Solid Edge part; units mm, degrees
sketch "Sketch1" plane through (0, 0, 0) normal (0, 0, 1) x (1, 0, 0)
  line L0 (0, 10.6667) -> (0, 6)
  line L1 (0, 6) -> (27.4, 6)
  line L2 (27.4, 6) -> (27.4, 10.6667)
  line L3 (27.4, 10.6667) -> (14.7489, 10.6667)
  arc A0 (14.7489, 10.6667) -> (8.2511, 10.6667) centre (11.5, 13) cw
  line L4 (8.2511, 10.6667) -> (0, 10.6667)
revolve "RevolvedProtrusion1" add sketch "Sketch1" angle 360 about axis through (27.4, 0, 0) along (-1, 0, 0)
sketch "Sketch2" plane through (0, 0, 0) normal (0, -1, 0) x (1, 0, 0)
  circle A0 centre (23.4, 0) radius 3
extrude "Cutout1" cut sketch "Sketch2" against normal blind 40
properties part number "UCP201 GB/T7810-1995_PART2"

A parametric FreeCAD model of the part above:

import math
import FreeCAD as App
import Part
import Sketcher

V = App.Vector

doc = App.newDocument("Part")
body = doc.addObject("PartDesign::Body", "Body")

sketch1 = body.newObject("Sketcher::SketchObject", "Sketch")
sketch1.AttachmentSupport = (doc.getObject("XY_Plane"), [""])
sketch1.MapMode = "FlatFace"
sketch1.addGeometry([
    Part.LineSegment(V(8.2511, 10.6667, 0), V(0, 10.6667, 0)),
    Part.LineSegment(V(0, 10.6667, 0), V(0, 6, 0)),
    Part.LineSegment(V(0, 6, 0), V(27.4, 6, 0)),
    Part.LineSegment(V(27.4, 6, 0), V(27.4, 10.6667, 0)),
    Part.LineSegment(V(27.4, 10.6667, 0), V(14.7489, 10.6667, 0)),
    Part.ArcOfCircle(Part.Circle(V(11.5, 13, 0), V(0, 0, 1), 3.999955), math.radians(-144.31479), math.radians(-35.68521)),
], False)
sketch1.addConstraint([
    Sketcher.Constraint("Coincident", 0, 2, 1, 1),
    Sketcher.Constraint("Coincident", 1, 2, 2, 1),
    Sketcher.Constraint("Coincident", 2, 2, 3, 1),
    Sketcher.Constraint("Coincident", 3, 2, 4, 1),
    Sketcher.Constraint("Coincident", 4, 2, 5, 2),
    Sketcher.Constraint("Coincident", 5, 1, 0, 1),
    Sketcher.Constraint("Horizontal", 0),
    Sketcher.Constraint("Vertical", 1),
    Sketcher.Constraint("Horizontal", 2),
    Sketcher.Constraint("Vertical", 3),
    Sketcher.Constraint("Horizontal", 4),
    Sketcher.Constraint("PointOnObject", 0, 2, -2),
    Sketcher.Constraint("Horizontal", 0, 2, 3, 2),
    Sketcher.Constraint("Radius", 5, 4.0),
    Sketcher.Constraint("DistanceX", 2, 1, 2, 2, 27.4),
    Sketcher.Constraint("DistanceY", -1, 1, 5, 3, 13.0),
    Sketcher.Constraint("DistanceY", -1, 1, 1, 2, 6.0),
    Sketcher.Constraint("DistanceX", -1, 1, 5, 3, 11.5),
    Sketcher.Constraint("DistanceX", 0, 2, 0, 1, 8.251),
])
revolution = body.newObject("PartDesign::Revolution", "Revolution")
revolution.Profile = sketch1
revolution.ReferenceAxis = (sketch1, ["H_Axis"])
revolution.Angle = 360

sketch2 = body.newObject("Sketcher::SketchObject", "Sketch001")
sketch2.AttachmentSupport = (doc.getObject("XZ_Plane"), [""])
sketch2.MapMode = "FlatFace"
sketch2.addGeometry(Part.Circle(V(23.4, 0, 0), V(0, 0, 1), 3), False)
sketch2.addConstraint([
    Sketcher.Constraint("PointOnObject", 0, 3, -1),
    Sketcher.Constraint("Diameter", 0, 6.0),
    Sketcher.Constraint("DistanceX", -1, 1, 0, 3, 23.4),
])
pocket1 = body.newObject("PartDesign::Pocket", "Pocket")
pocket1.Profile = sketch2
pocket1.Length = 40

doc.recompute()
